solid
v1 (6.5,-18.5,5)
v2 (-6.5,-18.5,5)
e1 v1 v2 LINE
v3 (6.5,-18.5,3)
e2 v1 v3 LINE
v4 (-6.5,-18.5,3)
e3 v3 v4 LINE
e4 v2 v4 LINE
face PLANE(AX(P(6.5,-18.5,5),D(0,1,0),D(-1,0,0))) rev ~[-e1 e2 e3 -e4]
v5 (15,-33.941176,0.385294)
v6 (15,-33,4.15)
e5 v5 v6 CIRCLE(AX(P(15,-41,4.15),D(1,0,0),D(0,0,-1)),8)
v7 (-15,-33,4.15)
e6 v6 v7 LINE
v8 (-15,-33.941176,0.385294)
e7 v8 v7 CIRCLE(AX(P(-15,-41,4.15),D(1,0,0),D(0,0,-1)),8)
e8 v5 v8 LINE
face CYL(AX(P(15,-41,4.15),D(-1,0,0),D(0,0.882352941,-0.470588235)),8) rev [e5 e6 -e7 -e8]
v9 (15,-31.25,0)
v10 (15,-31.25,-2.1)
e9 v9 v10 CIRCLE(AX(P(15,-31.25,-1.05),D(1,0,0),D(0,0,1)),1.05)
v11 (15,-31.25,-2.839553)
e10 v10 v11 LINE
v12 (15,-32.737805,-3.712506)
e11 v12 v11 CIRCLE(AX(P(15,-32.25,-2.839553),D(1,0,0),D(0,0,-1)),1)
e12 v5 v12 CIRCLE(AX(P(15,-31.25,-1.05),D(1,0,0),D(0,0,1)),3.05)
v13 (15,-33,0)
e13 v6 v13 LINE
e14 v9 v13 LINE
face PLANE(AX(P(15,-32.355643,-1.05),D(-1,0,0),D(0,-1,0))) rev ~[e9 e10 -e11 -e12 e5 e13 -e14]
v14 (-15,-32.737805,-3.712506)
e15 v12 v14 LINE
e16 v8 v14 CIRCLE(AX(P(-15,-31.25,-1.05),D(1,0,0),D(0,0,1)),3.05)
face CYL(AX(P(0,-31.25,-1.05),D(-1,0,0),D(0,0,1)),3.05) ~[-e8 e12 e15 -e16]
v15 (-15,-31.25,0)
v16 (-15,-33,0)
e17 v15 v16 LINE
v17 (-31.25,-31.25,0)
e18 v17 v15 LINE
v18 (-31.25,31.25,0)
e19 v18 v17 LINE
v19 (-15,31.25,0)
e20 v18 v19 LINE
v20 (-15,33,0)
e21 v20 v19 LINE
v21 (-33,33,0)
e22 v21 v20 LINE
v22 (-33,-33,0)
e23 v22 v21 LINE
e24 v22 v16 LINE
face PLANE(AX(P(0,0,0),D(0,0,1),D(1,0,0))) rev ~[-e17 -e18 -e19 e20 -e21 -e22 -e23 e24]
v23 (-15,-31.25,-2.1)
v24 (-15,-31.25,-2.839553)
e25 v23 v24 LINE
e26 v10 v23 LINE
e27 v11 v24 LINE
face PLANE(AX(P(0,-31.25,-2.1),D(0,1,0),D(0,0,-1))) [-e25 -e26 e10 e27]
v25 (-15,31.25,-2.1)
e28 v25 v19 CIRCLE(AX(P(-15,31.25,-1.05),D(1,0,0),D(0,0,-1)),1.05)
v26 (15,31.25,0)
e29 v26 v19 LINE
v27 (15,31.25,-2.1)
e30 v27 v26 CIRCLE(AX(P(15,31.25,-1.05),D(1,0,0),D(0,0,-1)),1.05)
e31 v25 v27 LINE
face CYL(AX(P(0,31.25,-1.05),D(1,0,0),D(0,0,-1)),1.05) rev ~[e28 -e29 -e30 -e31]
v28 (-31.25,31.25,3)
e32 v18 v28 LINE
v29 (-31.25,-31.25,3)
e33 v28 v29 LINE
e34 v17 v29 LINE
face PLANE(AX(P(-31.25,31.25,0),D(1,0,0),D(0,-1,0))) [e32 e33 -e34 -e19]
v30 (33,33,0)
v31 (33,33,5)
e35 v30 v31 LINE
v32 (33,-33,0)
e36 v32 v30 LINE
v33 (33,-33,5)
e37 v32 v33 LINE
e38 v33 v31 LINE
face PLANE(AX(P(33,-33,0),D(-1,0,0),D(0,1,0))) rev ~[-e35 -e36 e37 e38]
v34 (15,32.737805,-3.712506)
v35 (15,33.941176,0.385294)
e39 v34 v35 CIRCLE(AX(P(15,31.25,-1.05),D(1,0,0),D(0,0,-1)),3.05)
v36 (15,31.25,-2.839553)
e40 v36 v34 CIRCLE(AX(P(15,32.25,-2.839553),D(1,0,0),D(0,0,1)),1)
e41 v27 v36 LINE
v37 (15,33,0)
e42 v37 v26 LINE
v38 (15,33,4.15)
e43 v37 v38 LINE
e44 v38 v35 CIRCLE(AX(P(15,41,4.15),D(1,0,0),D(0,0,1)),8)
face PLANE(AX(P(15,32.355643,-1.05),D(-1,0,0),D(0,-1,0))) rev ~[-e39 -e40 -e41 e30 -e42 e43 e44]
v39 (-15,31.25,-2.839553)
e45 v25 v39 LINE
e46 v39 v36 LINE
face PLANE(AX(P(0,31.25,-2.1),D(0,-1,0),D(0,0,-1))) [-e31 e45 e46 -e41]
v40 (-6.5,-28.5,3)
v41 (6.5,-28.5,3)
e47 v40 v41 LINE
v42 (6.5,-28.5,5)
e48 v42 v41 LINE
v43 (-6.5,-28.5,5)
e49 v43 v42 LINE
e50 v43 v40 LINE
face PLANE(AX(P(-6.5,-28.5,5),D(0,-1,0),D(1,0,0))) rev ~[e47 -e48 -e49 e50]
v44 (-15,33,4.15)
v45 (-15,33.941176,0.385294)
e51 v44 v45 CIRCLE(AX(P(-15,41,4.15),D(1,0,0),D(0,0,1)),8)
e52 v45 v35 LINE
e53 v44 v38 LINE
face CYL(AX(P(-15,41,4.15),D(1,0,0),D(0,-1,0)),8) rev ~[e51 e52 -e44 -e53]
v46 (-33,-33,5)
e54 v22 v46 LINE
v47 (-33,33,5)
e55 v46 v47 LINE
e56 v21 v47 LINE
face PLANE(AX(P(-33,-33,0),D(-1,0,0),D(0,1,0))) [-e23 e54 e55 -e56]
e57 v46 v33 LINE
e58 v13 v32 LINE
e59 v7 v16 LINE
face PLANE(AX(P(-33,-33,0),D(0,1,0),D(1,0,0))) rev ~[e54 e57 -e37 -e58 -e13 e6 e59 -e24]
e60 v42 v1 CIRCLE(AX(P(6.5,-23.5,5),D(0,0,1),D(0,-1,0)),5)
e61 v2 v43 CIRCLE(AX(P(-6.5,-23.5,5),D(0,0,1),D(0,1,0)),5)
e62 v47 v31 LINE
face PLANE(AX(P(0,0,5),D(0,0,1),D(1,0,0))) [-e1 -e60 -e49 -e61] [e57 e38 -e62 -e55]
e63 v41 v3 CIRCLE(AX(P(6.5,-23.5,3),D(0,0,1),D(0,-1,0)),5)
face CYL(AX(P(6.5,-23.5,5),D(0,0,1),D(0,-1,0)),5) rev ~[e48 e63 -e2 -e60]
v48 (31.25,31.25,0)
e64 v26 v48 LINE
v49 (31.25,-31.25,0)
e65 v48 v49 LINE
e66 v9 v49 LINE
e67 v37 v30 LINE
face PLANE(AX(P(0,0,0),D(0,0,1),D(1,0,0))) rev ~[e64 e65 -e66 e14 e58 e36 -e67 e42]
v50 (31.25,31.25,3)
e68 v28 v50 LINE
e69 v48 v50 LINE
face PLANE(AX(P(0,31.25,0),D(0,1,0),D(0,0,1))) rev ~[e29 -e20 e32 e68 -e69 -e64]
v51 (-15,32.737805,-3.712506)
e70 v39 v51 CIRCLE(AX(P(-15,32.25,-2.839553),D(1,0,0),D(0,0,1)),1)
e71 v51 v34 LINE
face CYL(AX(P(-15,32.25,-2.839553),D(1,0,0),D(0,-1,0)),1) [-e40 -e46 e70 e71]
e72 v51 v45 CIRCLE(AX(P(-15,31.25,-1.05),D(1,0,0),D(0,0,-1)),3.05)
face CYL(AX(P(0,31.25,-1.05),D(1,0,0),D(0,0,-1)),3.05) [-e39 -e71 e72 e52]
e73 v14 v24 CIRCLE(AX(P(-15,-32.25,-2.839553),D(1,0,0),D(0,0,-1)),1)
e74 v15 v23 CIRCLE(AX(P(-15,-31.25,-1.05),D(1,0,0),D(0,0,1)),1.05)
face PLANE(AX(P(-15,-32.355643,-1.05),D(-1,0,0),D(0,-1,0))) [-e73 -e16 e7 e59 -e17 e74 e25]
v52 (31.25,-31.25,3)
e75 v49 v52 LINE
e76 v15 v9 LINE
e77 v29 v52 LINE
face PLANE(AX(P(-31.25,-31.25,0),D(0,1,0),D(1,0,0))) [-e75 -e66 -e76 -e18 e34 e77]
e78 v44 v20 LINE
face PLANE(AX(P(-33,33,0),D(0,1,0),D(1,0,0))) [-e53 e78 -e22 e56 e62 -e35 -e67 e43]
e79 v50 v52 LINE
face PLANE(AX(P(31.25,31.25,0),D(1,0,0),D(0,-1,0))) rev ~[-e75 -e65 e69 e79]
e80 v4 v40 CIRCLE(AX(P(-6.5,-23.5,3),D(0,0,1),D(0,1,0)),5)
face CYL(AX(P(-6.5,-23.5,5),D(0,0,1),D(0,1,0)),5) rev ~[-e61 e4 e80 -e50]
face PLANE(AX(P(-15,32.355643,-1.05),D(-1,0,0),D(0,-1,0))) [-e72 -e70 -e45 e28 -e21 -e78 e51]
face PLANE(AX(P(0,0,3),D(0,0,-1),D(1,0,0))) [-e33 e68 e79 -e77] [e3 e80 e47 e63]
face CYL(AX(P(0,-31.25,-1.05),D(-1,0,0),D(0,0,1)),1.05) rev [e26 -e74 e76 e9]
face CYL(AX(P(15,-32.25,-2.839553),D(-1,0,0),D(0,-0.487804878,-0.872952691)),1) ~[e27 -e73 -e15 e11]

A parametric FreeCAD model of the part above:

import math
import FreeCAD as App
import Part
import Sketcher
Q = App.Units.Quantity


def edges_at(feature, points):
    """Names of the edges that pass closest to the given points."""
    edges = feature.Shape.Edges
    near = lambda p: min(range(len(edges)), key=lambda i: edges[i].distToShape(Part.Vertex(*p))[0])
    return sorted({f"Edge{near(p) + 1}" for p in points})


def add_polygon(sketch, points):
    """Adds a closed chain of lines whose ends are joined by coincident constraints."""
    first, n = sketch.GeometryCount, len(points)
    for a, b in zip(points, points[1:] + points[:1]):
        sketch.addGeometry(Part.LineSegment(App.Vector(*a, 0), App.Vector(*b, 0)), False)
    for i in range(n):
        sketch.addConstraint(Sketcher.Constraint("Coincident", first + i, 2, first + (i + 1) % n, 1))

doc = App.newDocument("Part")
body = doc.addObject("PartDesign::Body", "Body")

# Sketch on XY plane
sketch1 = doc.addObject("Sketcher::SketchObject", "Sketch")
body.addObject(sketch1)
sketch1.AttachmentSupport = (doc.XY_Plane, [""])
sketch1.MapMode = "FlatFace"
add_polygon(sketch1, [(-33, 33), (-33, -33), (33, -33), (33, 33)])  # lines 0-3
sketch1.addConstraint(Sketcher.Constraint("Vertical", 0))
sketch1.addConstraint(Sketcher.Constraint("Horizontal", 1))
sketch1.addConstraint(Sketcher.Constraint("Vertical", 2))
sketch1.addConstraint(Sketcher.Constraint("Horizontal", 3))
sketch1.addConstraint(Sketcher.Constraint("Symmetric", 0, 2, 2, 2, -1, 1))
sketch1.addConstraint(Sketcher.Constraint("Equal", 3, 0))
sketch1.addConstraint(Sketcher.Constraint("DistanceX", 1, 1, 1, 2, Q("66 mm")))
pad1 = doc.addObject("PartDesign::Pad", "Pad")
body.addObject(pad1)
pad1.Profile = sketch1
pad1.Length = 5

# Sketch on XY plane
sketch2 = doc.addObject("Sketcher::SketchObject", "Sketch001")
body.addObject(sketch2)
sketch2.AttachmentSupport = (doc.XY_Plane, [""])
sketch2.MapMode = "FlatFace"
add_polygon(sketch2, [(-31, -31), (-31, 31), (31, 31), (31, -31)])  # lines 0-3
sketch2.addConstraint(Sketcher.Constraint("Vertical", 0))
sketch2.addConstraint(Sketcher.Constraint("Horizontal", 1))
sketch2.addConstraint(Sketcher.Constraint("Vertical", 2))
sketch2.addConstraint(Sketcher.Constraint("Horizontal", 3))
sketch2.addConstraint(Sketcher.Constraint("Symmetric", 0, 2, 2, 2, -1, 1))
sketch2.addConstraint(Sketcher.Constraint("Equal", 3, 0))
sketch2.addConstraint(Sketcher.Constraint("DistanceX", 1, 1, 1, 2, Q("62.5 mm")))
pocket1 = doc.addObject("PartDesign::Pocket", "Pocket")
body.addObject(pocket1)
pocket1.Profile = sketch2
pocket1.Length = 3
pocket1.Reversed = True

# Sketch on XY plane
sketch3 = doc.addObject("Sketcher::SketchObject", "Sketch002")
body.addObject(sketch3)
sketch3.AttachmentSupport = (doc.XY_Plane, [""])
sketch3.MapMode = "FlatFace"
sketch3.AttachmentOffset = App.Placement(App.Vector(0, 0, 5), App.Rotation())
sketch3.addGeometry(Part.ArcOfCircle(Part.Circle(App.Vector(-6, -24, 0), App.Vector(0, 0, 1), 5), math.radians(90), math.radians(270)), False)
sketch3.addGeometry(Part.LineSegment(App.Vector(-6, -28, 0), App.Vector(6, -28, 0)), False)
sketch3.addGeometry(Part.ArcOfCircle(Part.Circle(App.Vector(6, -24, 0), App.Vector(0, 0, 1), 5), math.radians(-90), math.radians(90)), False)
sketch3.addGeometry(Part.LineSegment(App.Vector(6, -18, 0), App.Vector(-6, -18, 0)), False)
sketch3.addConstraint(Sketcher.Constraint("Tangent", 0, 2, 1, 1))
sketch3.addConstraint(Sketcher.Constraint("Tangent", 1, 2, 2, 1))
sketch3.addConstraint(Sketcher.Constraint("Tangent", 2, 2, 3, 1))
sketch3.addConstraint(Sketcher.Constraint("Tangent", 3, 2, 0, 1))
sketch3.addConstraint(Sketcher.Constraint("Horizontal", 1))
sketch3.addConstraint(Sketcher.Constraint("Horizontal", 3))
sketch3.addConstraint(Sketcher.Constraint("Radius", 0, Q("5 mm")))
sketch3.addConstraint(Sketcher.Constraint("DistanceX", 1, 1, 1, 2, Q("13 mm")))
sketch3.addConstraint(Sketcher.Constraint("DistanceX", 0, 3, -1, 1, Q("6.5 mm")))
sketch3.addConstraint(Sketcher.Constraint("DistanceY", 0, 3, -1, 1, Q("23.5 mm")))
pocket2 = doc.addObject("PartDesign::Pocket", "Pocket001")
body.addObject(pocket2)
pocket2.Profile = sketch3
pocket2.Length = 2

# Sketch on YZ plane
sketch4 = doc.addObject("Sketcher::SketchObject", "Sketch003")
body.addObject(sketch4)
sketch4.AttachmentSupport = (doc.YZ_Plane, [""])
sketch4.MapMode = "FlatFace"
sketch4.addGeometry(Part.ArcOfCircle(Part.Circle(App.Vector(-31.2, -1.1, 0), App.Vector(0, 0, 1), 1.1), math.radians(90), math.radians(270)), False)
sketch4.addGeometry(Part.LineSegment(App.Vector(-31.2, 0, 0), App.Vector(-31.2, 2, 0)), False)
sketch4.addGeometry(Part.ArcOfCircle(Part.Circle(App.Vector(-31.2, -1.1, 0), App.Vector(0, 0, 1), 3), math.radians(90), math.radians(270)), False)
sketch4.addGeometry(Part.LineSegment(App.Vector(-31.2, -4.1, 0), App.Vector(-31.2, -2.1, 0)), False)
sketch4.addGeometry(Part.ArcOfCircle(Part.Circle(App.Vector(31.2, -1.1, 0), App.Vector(0, 0, 1), 1.1), math.radians(-90), math.radians(90)), False)
sketch4.addGeometry(Part.LineSegment(App.Vector(31.2, -2.1, 0), App.Vector(31.2, -4.1, 0)), False)
sketch4.addGeometry(Part.ArcOfCircle(Part.Circle(App.Vector(31.2, -1.1, 0), App.Vector(0, 0, 1), 3), math.radians(-90), math.radians(90)), False)
sketch4.addGeometry(Part.LineSegment(App.Vector(31.2, 2, 0), App.Vector(31.2, 0, 0)), False)
sketch4.addConstraint(Sketcher.Constraint("Coincident", 0, 1, 1, 1))
sketch4.addConstraint(Sketcher.Constraint("Coincident", 1, 2, 2, 1))
sketch4.addConstraint(Sketcher.Constraint("Coincident", 2, 2, 3, 1))
sketch4.addConstraint(Sketcher.Constraint("Coincident", 3, 2, 0, 2))
sketch4.addConstraint(Sketcher.Constraint("Coincident", 4, 1, 5, 1))
sketch4.addConstraint(Sketcher.Constraint("Coincident", 5, 2, 6, 1))
sketch4.addConstraint(Sketcher.Constraint("Coincident", 6, 2, 7, 1))
sketch4.addConstraint(Sketcher.Constraint("Coincident", 7, 2, 4, 2))
sketch4.addConstraint(Sketcher.Constraint("Vertical", 1))
sketch4.addConstraint(Sketcher.Constraint("Vertical", 3))
sketch4.addConstraint(Sketcher.Constraint("Vertical", 5))
sketch4.addConstraint(Sketcher.Constraint("Vertical", 7))
sketch4.addConstraint(Sketcher.Constraint("Coincident", 2, 3, 0, 3))
sketch4.addConstraint(Sketcher.Constraint("Coincident", 6, 3, 4, 3))
sketch4.addConstraint(Sketcher.Constraint("Equal", 0, 4))
sketch4.addConstraint(Sketcher.Constraint("Equal", 2, 6))
sketch4.addConstraint(Sketcher.Constraint("Symmetric", 0, 1, 7, 2, -1, 1))
sketch4.addConstraint(Sketcher.Constraint("Symmetric", 0, 3, 4, 3, -2))
sketch4.addConstraint(Sketcher.Constraint("Vertical", 2, 3, 0, 1))
sketch4.addConstraint(Sketcher.Constraint("Vertical", 1, 2, 2, 2))
sketch4.addConstraint(Sketcher.Constraint("Vertical", 6, 3, 4, 1))
sketch4.addConstraint(Sketcher.Constraint("DistanceY", 1, 1, 1, 2, Q("2 mm")))
sketch4.addConstraint(Sketcher.Constraint("Radius", 0, Q("1.05 mm")))
sketch4.addConstraint(Sketcher.Constraint("DistanceX", 0, 3, 4, 3, Q("62.5 mm")))
pad2 = doc.addObject("PartDesign::Pad", "Pad001")
body.addObject(pad2)
pad2.Profile = sketch4
pad2.Length = 30
pad2.Midplane = True
doc.recompute()

fillet = doc.addObject("PartDesign::Fillet", "Fillet")
body.addObject(fillet)
fillet.Base = (pad2, edges_at(pad2, [(0, 31.25, -4.1)]))
fillet.Radius = 1
doc.recompute()

fillet2 = doc.addObject("PartDesign::Fillet", "Fillet001")
body.addObject(fillet2)
fillet2.Base = (fillet, edges_at(fillet, [(0, -31.25, -4.1)]))
fillet2.Radius = 1
doc.recompute()

fillet3 = doc.addObject("PartDesign::Fillet", "Fillet002")
body.addObject(fillet3)
fillet3.Base = (fillet2, edges_at(fillet2, [(0, -33, 1.448)]))
fillet3.Radius = 8
doc.recompute()

fillet4 = doc.addObject("PartDesign::Fillet", "Fillet003")
body.addObject(fillet4)
fillet4.Base = (fillet3, edges_at(fillet3, [(0, 33, 1.448)]))
fillet4.Radius = 8

doc.recompute()
